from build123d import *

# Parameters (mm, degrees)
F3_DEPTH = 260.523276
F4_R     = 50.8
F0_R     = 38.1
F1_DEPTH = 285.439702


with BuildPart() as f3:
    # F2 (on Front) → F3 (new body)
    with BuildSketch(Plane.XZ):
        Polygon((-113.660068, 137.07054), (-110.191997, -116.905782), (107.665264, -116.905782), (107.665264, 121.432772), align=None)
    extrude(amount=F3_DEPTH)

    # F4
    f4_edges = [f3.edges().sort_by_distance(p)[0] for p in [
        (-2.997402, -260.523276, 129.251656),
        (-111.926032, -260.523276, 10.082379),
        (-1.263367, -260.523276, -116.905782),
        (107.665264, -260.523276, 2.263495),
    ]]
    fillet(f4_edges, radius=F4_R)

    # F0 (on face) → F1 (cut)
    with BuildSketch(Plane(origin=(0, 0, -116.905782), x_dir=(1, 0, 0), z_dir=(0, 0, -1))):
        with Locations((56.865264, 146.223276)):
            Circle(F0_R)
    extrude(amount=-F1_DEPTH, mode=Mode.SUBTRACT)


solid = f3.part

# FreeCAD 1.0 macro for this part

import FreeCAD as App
import Part
import Sketcher
from FreeCAD import Vector
Q = App.Units.Quantity


def edges_at(feature, points):
    """Names of the edges that pass closest to the given points."""
    edges = feature.Shape.Edges
    near = lambda p: min(range(len(edges)), key=lambda i: edges[i].distToShape(Part.Vertex(*p))[0])
    return sorted({f"Edge{near(p) + 1}" for p in points})


def add_polygon(sketch, points):
    """Adds a closed chain of lines whose ends are joined by coincident constraints."""
    first, n = sketch.GeometryCount, len(points)
    for a, b in zip(points, points[1:] + points[:1]):
        sketch.addGeometry(Part.LineSegment(App.Vector(*a, 0), App.Vector(*b, 0)), False)
    for i in range(n):
        sketch.addConstraint(Sketcher.Constraint("Coincident", first + i, 2, first + (i + 1) % n, 1))

doc = App.newDocument("Part")
body = doc.addObject("PartDesign::Body", "Body")

sketch1 = body.newObject("Sketcher::SketchObject", "Sketch")
sketch1.AttachmentSupport = (doc.getObject("XZ_Plane"), [""])
sketch1.MapMode = "FlatFace"
add_polygon(sketch1, [(-113.660068, 137.07054), (-110.191997, -116.905782), (107.665264, -116.905782), (107.665264, 121.432772)])
sketch1.addConstraint([
    Sketcher.Constraint("Horizontal", 1),
    Sketcher.Constraint("Vertical", 2),
    Sketcher.Constraint("Distance", 0, Q("10 in")),
    Sketcher.Constraint("DistanceX", 1, 1, 1, 2, Q("217.857261 mm")),
    Sketcher.Constraint("Distance", 3, Q("221.877088 mm")),
    Sketcher.Constraint("DistanceY", 2, 1, 2, 2, Q("238.338554 mm")),
    Sketcher.Constraint("DistanceY", -1, 1, 2, 2, Q("121.432772 mm")),
    Sketcher.Constraint("DistanceX", 0, 2, -1, 1, Q("110.191997 mm")),
])
pad1 = body.newObject("PartDesign::Pad", "Pad")
pad1.Profile = sketch1
pad1.Length = 260.523276
doc.recompute()

fillet = body.newObject("PartDesign::Fillet", "Fillet")
fillet.Base = (pad1, edges_at(pad1, [
    (-2.997, -260.523, 129.252),
    (-111.926, -260.523, 10.082),
    (-1.263, -260.523, -116.906),
    (107.665, -260.523, 2.263),
]))
fillet.Radius = Q("2 in")

sketch2 = body.newObject("Sketcher::SketchObject", "Sketch001")
sketch2.AttachmentSupport = (doc.getObject("XY_Plane"), [""])
sketch2.MapMode = "FlatFace"
sketch2.AttachmentOffset = App.Placement(Vector(0, 0, -116.905782), App.Rotation())
sketch2.addGeometry(Part.Circle(Vector(56.865264, -146.223276, 0), Vector(0, 0, 1), 38.1), False)
sketch2.addConstraint([
    Sketcher.Constraint("Diameter", 0, Q("3 in")),
    Sketcher.Constraint("DistanceX", -1, 1, 0, 3, Q("56.865264 mm")),
    Sketcher.Constraint("DistanceY", 0, 3, -1, 1, Q("146.223276 mm")),
])
pocket1 = body.newObject("PartDesign::Pocket", "Pocket")
pocket1.Profile = sketch2
pocket1.Length = 285.439702
pocket1.Reversed = True

doc.recompute()
